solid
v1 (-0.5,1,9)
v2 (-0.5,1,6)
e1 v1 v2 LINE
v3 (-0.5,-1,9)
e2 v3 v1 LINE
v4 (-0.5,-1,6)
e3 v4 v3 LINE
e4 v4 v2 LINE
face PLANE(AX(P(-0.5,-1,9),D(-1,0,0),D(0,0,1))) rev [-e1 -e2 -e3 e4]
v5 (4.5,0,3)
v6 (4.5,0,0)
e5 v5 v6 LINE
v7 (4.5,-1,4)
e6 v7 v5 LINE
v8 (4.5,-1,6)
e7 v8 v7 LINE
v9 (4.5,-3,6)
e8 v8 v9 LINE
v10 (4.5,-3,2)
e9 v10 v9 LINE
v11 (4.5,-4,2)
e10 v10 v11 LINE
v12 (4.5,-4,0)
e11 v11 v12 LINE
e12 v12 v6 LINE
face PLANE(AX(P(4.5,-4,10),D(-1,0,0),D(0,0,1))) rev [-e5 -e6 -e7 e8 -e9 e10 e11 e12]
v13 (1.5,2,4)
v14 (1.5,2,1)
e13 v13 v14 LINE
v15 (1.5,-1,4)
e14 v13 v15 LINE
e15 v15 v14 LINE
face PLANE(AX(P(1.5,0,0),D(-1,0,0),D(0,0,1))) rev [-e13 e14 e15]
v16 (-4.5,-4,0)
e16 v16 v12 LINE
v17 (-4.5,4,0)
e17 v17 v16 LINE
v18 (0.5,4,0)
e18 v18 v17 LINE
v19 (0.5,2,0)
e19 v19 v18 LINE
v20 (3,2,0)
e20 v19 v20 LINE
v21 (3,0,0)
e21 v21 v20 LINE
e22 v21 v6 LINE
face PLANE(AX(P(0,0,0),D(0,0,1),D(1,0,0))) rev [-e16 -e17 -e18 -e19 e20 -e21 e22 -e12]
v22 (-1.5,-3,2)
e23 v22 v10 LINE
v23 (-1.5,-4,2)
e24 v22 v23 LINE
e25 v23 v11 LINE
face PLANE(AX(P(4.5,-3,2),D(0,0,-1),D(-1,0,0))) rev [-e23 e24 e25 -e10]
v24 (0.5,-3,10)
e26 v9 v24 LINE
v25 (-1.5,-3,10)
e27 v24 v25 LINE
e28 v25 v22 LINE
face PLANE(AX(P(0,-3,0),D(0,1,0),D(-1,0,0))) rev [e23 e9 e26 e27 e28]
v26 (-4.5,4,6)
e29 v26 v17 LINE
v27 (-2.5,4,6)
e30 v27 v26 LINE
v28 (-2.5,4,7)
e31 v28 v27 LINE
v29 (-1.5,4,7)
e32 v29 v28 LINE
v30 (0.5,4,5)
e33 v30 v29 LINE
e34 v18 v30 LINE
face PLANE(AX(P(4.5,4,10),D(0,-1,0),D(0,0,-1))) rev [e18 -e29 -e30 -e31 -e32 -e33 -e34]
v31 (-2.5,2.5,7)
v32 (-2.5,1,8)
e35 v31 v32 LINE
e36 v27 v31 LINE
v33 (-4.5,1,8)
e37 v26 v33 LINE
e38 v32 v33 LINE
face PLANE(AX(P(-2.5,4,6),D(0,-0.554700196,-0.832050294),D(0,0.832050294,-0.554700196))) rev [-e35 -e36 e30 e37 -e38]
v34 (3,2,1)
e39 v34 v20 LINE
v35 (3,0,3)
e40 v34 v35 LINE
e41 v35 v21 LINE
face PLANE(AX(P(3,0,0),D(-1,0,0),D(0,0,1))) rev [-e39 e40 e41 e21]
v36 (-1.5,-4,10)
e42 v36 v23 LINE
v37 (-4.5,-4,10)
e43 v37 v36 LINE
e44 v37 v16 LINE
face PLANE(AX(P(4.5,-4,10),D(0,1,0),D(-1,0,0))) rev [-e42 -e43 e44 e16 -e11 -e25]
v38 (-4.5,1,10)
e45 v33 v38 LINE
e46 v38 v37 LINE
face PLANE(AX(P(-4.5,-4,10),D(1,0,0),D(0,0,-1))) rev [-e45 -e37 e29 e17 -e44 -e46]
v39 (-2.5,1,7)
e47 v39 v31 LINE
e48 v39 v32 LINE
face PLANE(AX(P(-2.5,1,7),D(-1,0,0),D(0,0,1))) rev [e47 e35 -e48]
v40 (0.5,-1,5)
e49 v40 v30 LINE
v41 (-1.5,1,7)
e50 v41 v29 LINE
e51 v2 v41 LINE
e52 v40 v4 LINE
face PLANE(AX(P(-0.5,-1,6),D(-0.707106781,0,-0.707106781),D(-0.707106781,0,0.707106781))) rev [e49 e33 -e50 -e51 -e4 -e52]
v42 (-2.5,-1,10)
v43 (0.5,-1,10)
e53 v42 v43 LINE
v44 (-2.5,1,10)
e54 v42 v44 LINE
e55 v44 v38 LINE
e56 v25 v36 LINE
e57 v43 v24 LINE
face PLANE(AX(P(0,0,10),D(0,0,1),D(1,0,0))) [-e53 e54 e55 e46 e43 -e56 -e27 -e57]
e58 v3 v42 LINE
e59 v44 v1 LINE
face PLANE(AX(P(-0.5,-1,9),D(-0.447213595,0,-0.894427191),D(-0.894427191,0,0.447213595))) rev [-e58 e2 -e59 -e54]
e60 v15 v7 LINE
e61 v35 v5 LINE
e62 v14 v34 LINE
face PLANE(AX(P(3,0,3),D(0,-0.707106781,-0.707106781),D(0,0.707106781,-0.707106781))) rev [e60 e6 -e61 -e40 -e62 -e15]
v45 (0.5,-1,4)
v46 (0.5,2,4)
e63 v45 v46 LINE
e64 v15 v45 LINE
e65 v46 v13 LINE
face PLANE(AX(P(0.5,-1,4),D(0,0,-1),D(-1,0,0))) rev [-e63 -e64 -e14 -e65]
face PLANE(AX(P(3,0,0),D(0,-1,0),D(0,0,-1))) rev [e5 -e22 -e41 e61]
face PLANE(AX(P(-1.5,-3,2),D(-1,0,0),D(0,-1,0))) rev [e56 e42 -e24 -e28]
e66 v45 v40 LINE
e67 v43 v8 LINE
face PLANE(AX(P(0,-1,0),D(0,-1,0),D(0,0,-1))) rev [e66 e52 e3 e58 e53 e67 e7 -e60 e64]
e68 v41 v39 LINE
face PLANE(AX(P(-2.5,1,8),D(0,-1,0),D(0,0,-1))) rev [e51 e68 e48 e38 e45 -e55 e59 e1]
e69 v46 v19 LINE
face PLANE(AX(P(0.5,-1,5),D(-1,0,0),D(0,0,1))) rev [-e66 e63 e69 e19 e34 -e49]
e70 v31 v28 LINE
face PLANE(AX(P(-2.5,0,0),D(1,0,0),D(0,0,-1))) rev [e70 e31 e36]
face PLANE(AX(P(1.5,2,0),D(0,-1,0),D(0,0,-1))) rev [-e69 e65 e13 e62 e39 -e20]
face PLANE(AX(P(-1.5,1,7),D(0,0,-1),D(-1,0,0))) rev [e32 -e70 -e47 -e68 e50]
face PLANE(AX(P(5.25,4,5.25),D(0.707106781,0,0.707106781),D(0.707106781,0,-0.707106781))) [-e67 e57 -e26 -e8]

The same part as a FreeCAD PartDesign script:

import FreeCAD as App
import Part
import Sketcher
from FreeCAD import Vector
Q = App.Units.Quantity


def add_polygon(sketch, points):
    """Adds a closed chain of lines whose ends are joined by coincident constraints."""
    first, n = sketch.GeometryCount, len(points)
    for a, b in zip(points, points[1:] + points[:1]):
        sketch.addGeometry(Part.LineSegment(App.Vector(*a, 0), App.Vector(*b, 0)), False)
    for i in range(n):
        sketch.addConstraint(Sketcher.Constraint("Coincident", first + i, 2, first + (i + 1) % n, 1))

doc = App.newDocument("Part")
body = doc.addObject("PartDesign::Body", "Body")

# Sketch on XY plane
sketch1 = body.newObject("Sketcher::SketchObject", "Sketch")
sketch1.AttachmentSupport = (doc.getObject("XY_Plane"), [""])
sketch1.MapMode = "FlatFace"
add_polygon(sketch1, [(-4.5, 4), (-4.5, -4), (4.5, -4), (4.5, 4)])  # lines 0-3
sketch1.addConstraint(Sketcher.Constraint("Vertical", 0))
sketch1.addConstraint(Sketcher.Constraint("Horizontal", 1))
sketch1.addConstraint(Sketcher.Constraint("Vertical", 2))
sketch1.addConstraint(Sketcher.Constraint("Horizontal", 3))
sketch1.addConstraint(Sketcher.Constraint("Symmetric", 0, 2, 2, 2, -1, 1))
sketch1.addConstraint(Sketcher.Constraint("DistanceX", 1, 1, 1, 2, 9.0))
sketch1.addConstraint(Sketcher.Constraint("DistanceY", 0, 2, 0, 1, 8.0))
pad1 = body.newObject("PartDesign::Pad", "Pad")
pad1.Profile = sketch1
pad1.Length = 10

# Sketch on YZ plane
sketch2 = body.newObject("Sketcher::SketchObject", "Sketch001")
sketch2.AttachmentSupport = (doc.getObject("YZ_Plane"), [""])
sketch2.MapMode = "FlatFace"
sketch2.AttachmentOffset = App.Placement(Vector(0, 0, 4.5), App.Rotation())
add_polygon(sketch2, [(0, 0), (4, 0), (4, 4), (-1, 4), (0, 3)])  # lines 0-4
sketch2.addConstraint(Sketcher.Constraint("Horizontal", 0))
sketch2.addConstraint(Sketcher.Constraint("Vertical", 1))
sketch2.addConstraint(Sketcher.Constraint("Horizontal", 2))
sketch2.addConstraint(Sketcher.Constraint("Vertical", 4))
sketch2.addConstraint(Sketcher.Constraint("Coincident", 4, 2, -1, 1))
sketch2.addConstraint(Sketcher.Constraint("Equal", 0, 1))
sketch2.addConstraint(Sketcher.Constraint("DistanceX", 0, 1, 0, 2, 4.0))
sketch2.addConstraint(Sketcher.Constraint("DistanceX", 2, 2, 2, 1, 5.0))
sketch2.addConstraint(Sketcher.Constraint("DistanceY", 4, 2, 4, 1, 3.0))
pocket1 = body.newObject("PartDesign::Pocket", "Pocket")
pocket1.Profile = sketch2
pocket1.Length = 1.5

# Sketch on YZ plane
sketch3 = body.newObject("Sketcher::SketchObject", "Sketch002")
sketch3.AttachmentSupport = (doc.getObject("YZ_Plane"), [""])
sketch3.MapMode = "FlatFace"
sketch3.AttachmentOffset = App.Placement(Vector(0, 0, 3), App.Rotation())
add_polygon(sketch3, [(2, 0), (4, 0), (4, 4), (-1, 4), (2, 1)])  # lines 0-4
sketch3.addConstraint(Sketcher.Constraint("Horizontal", 0))
sketch3.addConstraint(Sketcher.Constraint("Vertical", 1))
sketch3.addConstraint(Sketcher.Constraint("Horizontal", 2))
sketch3.addConstraint(Sketcher.Constraint("Vertical", 4))
sketch3.addConstraint(Sketcher.Constraint("PointOnObject", 0, 2, -1))
sketch3.addConstraint(Sketcher.Constraint("DistanceX", 0, 1, 0, 2, 2.0))
sketch3.addConstraint(Sketcher.Constraint("DistanceX", 2, 2, 2, 1, 5.0))
sketch3.addConstraint(Sketcher.Constraint("DistanceY", 1, 1, 1, 2, 4.0))
sketch3.addConstraint(Sketcher.Constraint("DistanceY", 4, 2, 4, 1, 1.0))
sketch3.addConstraint(Sketcher.Constraint("DistanceX", -1, 1, 0, 2, 4.0))
pocket2 = body.newObject("PartDesign::Pocket", "Pocket001")
pocket2.Profile = sketch3
pocket2.Length = 1.5

# Sketch on XZ plane
sketch4 = body.newObject("Sketcher::SketchObject", "Sketch003")
sketch4.AttachmentSupport = (doc.getObject("XZ_Plane"), [""])
sketch4.MapMode = "FlatFace"
sketch4.AttachmentOffset = App.Placement(Vector(0, 0, 4), App.Rotation())
add_polygon(sketch4, [(-1.5, 10), (-1.5, 2), (4.5, 2), (4.5, 10)])  # lines 0-3
sketch4.addConstraint(Sketcher.Constraint("Vertical", 0))
sketch4.addConstraint(Sketcher.Constraint("Horizontal", 1))
sketch4.addConstraint(Sketcher.Constraint("Vertical", 2))
sketch4.addConstraint(Sketcher.Constraint("Horizontal", 3))
sketch4.addConstraint(Sketcher.Constraint("DistanceX", 1, 1, 1, 2, 6.0))
sketch4.addConstraint(Sketcher.Constraint("DistanceY", 0, 2, 0, 1, 8.0))
sketch4.addConstraint(Sketcher.Constraint("DistanceY", -1, 1, 0, 2, 2.0))
sketch4.addConstraint(Sketcher.Constraint("DistanceX", 0, 2, -1, 1, 1.5))
pocket3 = body.newObject("PartDesign::Pocket", "Pocket002")
pocket3.Profile = sketch4
pocket3.Length = 1

# Sketch on XZ plane
sketch5 = body.newObject("Sketcher::SketchObject", "Sketch004")
sketch5.AttachmentSupport = (doc.getObject("XZ_Plane"), [""])
sketch5.MapMode = "FlatFace"
sketch5.AttachmentOffset = App.Placement(Vector(0, 0, 3), App.Rotation())
add_polygon(sketch5, [(0.5, 10), (4.5, 6), (4.5, 10)])  # lines 0-2
sketch5.addConstraint(Sketcher.Constraint("Vertical", 1))
sketch5.addConstraint(Sketcher.Constraint("Horizontal", 2))
sketch5.addConstraint(Sketcher.Constraint("Equal", 2, 1))
sketch5.addConstraint(Sketcher.Constraint("DistanceX", 2, 2, 2, 1, 4.0))
sketch5.addConstraint(Sketcher.Constraint("DistanceY", -1, 1, 0, 2, 6.0))
sketch5.addConstraint(Sketcher.Constraint("DistanceX", -1, 1, 0, 2, 4.5))
pocket4 = body.newObject("PartDesign::Pocket", "Pocket003")
pocket4.Profile = sketch5
pocket4.Type = "ThroughAll"

# Sketch on XZ plane
sketch6 = body.newObject("Sketcher::SketchObject", "Sketch005")
sketch6.AttachmentSupport = (doc.getObject("XZ_Plane"), [""])
sketch6.MapMode = "FlatFace"
sketch6.AttachmentOffset = App.Placement(Vector(0, 0, -4), App.Rotation())
add_polygon(sketch6, [(4.5, 6), (4.5, 4), (0.5, 4), (0.5, 5), (-0.5, 6), (-0.5, 9), (-2.5, 10), (0.5, 10)])  # lines 0-7
sketch6.addConstraint(Sketcher.Constraint("Vertical", 0))
sketch6.addConstraint(Sketcher.Constraint("Horizontal", 1))
sketch6.addConstraint(Sketcher.Constraint("Vertical", 2))
sketch6.addConstraint(Sketcher.Constraint("Vertical", 4))
sketch6.addConstraint(Sketcher.Constraint("Horizontal", 6))
sketch6.addConstraint(Sketcher.Constraint("Parallel", 3, 7))
sketch6.addConstraint(Sketcher.Constraint("Horizontal", 3, 2, 7, 2))
sketch6.addConstraint(Sketcher.Constraint("Vertical", 2, 2, 6, 2))
sketch6.addConstraint(Sketcher.Constraint("Equal", 6, 4))
sketch6.addConstraint(Sketcher.Constraint("DistanceX", 1, 2, 1, 1, 4.0))
sketch6.addConstraint(Sketcher.Constraint("DistanceX", 6, 1, 6, 2, 3.0))
sketch6.addConstraint(Sketcher.Constraint("DistanceY", 0, 2, 0, 1, 2.0))
sketch6.addConstraint(Sketcher.Constraint("DistanceY", 2, 1, 2, 2, 1.0))
sketch6.addConstraint(Sketcher.Constraint("Angle", 3, Q("135 deg")))
sketch6.addConstraint(Sketcher.Constraint("DistanceY", -1, 1, 0, 2, 4.0))
sketch6.addConstraint(Sketcher.Constraint("DistanceX", -1, 1, 0, 2, 4.5))
pocket5 = body.newObject("PartDesign::Pocket", "Pocket004")
pocket5.Profile = sketch6
pocket5.Length = 5
pocket5.Reversed = True

# Sketch on YZ plane
sketch7 = body.newObject("Sketcher::SketchObject", "Sketch006")
sketch7.AttachmentSupport = (doc.getObject("YZ_Plane"), [""])
sketch7.MapMode = "FlatFace"
sketch7.AttachmentOffset = App.Placement(Vector(0, 0, 1.5), App.Rotation())
add_polygon(sketch7, [(2, 4), (2, 0), (4, 0), (4, 4)])  # lines 0-3
sketch7.addConstraint(Sketcher.Constraint("Vertical", 0))
sketch7.addConstraint(Sketcher.Constraint("Horizontal", 1))
sketch7.addConstraint(Sketcher.Constraint("Vertical", 2))
sketch7.addConstraint(Sketcher.Constraint("Horizontal", 3))
sketch7.addConstraint(Sketcher.Constraint("PointOnObject", 0, 2, -1))
sketch7.addConstraint(Sketcher.Constraint("DistanceX", 1, 1, 1, 2, 2.0))
sketch7.addConstraint(Sketcher.Constraint("DistanceY", 0, 2, 0, 1, 4.0))
sketch7.addConstraint(Sketcher.Constraint("DistanceX", -1, 1, 0, 2, 2.0))
pocket6 = body.newObject("PartDesign::Pocket", "Pocket005")
pocket6.Profile = sketch7
pocket6.Length = 1

# Sketch on YZ plane
sketch8 = body.newObject("Sketcher::SketchObject", "Sketch007")
sketch8.AttachmentSupport = (doc.getObject("YZ_Plane"), [""])
sketch8.MapMode = "FlatFace"
sketch8.AttachmentOffset = App.Placement(Vector(0, 0, -4.5), App.Rotation())
add_polygon(sketch8, [(4, 6), (1, 8), (1, 10), (4, 10)])  # lines 0-3
sketch8.addConstraint(Sketcher.Constraint("Vertical", 1))
sketch8.addConstraint(Sketcher.Constraint("Horizontal", 2))
sketch8.addConstraint(Sketcher.Constraint("Vertical", 3))
sketch8.addConstraint(Sketcher.Constraint("DistanceX", 2, 1, 2, 2, 3.0))
sketch8.addConstraint(Sketcher.Constraint("DistanceY", 1, 1, 1, 2, 2.0))
sketch8.addConstraint(Sketcher.Constraint("DistanceY", 3, 2, 3, 1, 4.0))
sketch8.addConstraint(Sketcher.Constraint("DistanceX", -1, 1, 0, 2, 1.0))
sketch8.addConstraint(Sketcher.Constraint("DistanceY", -1, 1, 0, 2, 8.0))
pocket7 = body.newObject("PartDesign::Pocket", "Pocket006")
pocket7.Profile = sketch8
pocket7.Length = 2
pocket7.Reversed = True

# Sketch on XZ plane
sketch9 = body.newObject("Sketcher::SketchObject", "Sketch008")
sketch9.AttachmentSupport = (doc.getObject("XZ_Plane"), [""])
sketch9.MapMode = "FlatFace"
sketch9.AttachmentOffset = App.Placement(Vector(0, 0, -4), App.Rotation())
add_polygon(sketch9, [(0.5, 5), (-1.5, 7), (-2.5, 7), (-2.5, 10), (0.5, 8.5)])  # lines 0-4
sketch9.addConstraint(Sketcher.Constraint("Horizontal", 1))
sketch9.addConstraint(Sketcher.Constraint("Vertical", 2))
sketch9.addConstraint(Sketcher.Constraint("Vertical", 4))
sketch9.addConstraint(Sketcher.Constraint("DistanceX", 1, 2, 1, 1, 1.0))
sketch9.addConstraint(Sketcher.Constraint("DistanceY", 2, 1, 2, 2, 3.0))
sketch9.addConstraint(Sketcher.Constraint("Angle", 0, Q("135 deg")))
sketch9.addConstraint(Sketcher.Constraint("DistanceY", 4, 2, 4, 1, 3.5))
sketch9.addConstraint(Sketcher.Constraint("DistanceY", -1, 1, 0, 2, 7.0))
sketch9.addConstraint(Sketcher.Constraint("DistanceY", -1, 1, 4, 2, 5.0))
sketch9.addConstraint(Sketcher.Constraint("DistanceX", 0, 2, -1, 1, 1.5))
pocket8 = body.newObject("PartDesign::Pocket", "Pocket007")
pocket8.Profile = sketch9
pocket8.Length = 3
pocket8.Reversed = True

doc.recompute()
